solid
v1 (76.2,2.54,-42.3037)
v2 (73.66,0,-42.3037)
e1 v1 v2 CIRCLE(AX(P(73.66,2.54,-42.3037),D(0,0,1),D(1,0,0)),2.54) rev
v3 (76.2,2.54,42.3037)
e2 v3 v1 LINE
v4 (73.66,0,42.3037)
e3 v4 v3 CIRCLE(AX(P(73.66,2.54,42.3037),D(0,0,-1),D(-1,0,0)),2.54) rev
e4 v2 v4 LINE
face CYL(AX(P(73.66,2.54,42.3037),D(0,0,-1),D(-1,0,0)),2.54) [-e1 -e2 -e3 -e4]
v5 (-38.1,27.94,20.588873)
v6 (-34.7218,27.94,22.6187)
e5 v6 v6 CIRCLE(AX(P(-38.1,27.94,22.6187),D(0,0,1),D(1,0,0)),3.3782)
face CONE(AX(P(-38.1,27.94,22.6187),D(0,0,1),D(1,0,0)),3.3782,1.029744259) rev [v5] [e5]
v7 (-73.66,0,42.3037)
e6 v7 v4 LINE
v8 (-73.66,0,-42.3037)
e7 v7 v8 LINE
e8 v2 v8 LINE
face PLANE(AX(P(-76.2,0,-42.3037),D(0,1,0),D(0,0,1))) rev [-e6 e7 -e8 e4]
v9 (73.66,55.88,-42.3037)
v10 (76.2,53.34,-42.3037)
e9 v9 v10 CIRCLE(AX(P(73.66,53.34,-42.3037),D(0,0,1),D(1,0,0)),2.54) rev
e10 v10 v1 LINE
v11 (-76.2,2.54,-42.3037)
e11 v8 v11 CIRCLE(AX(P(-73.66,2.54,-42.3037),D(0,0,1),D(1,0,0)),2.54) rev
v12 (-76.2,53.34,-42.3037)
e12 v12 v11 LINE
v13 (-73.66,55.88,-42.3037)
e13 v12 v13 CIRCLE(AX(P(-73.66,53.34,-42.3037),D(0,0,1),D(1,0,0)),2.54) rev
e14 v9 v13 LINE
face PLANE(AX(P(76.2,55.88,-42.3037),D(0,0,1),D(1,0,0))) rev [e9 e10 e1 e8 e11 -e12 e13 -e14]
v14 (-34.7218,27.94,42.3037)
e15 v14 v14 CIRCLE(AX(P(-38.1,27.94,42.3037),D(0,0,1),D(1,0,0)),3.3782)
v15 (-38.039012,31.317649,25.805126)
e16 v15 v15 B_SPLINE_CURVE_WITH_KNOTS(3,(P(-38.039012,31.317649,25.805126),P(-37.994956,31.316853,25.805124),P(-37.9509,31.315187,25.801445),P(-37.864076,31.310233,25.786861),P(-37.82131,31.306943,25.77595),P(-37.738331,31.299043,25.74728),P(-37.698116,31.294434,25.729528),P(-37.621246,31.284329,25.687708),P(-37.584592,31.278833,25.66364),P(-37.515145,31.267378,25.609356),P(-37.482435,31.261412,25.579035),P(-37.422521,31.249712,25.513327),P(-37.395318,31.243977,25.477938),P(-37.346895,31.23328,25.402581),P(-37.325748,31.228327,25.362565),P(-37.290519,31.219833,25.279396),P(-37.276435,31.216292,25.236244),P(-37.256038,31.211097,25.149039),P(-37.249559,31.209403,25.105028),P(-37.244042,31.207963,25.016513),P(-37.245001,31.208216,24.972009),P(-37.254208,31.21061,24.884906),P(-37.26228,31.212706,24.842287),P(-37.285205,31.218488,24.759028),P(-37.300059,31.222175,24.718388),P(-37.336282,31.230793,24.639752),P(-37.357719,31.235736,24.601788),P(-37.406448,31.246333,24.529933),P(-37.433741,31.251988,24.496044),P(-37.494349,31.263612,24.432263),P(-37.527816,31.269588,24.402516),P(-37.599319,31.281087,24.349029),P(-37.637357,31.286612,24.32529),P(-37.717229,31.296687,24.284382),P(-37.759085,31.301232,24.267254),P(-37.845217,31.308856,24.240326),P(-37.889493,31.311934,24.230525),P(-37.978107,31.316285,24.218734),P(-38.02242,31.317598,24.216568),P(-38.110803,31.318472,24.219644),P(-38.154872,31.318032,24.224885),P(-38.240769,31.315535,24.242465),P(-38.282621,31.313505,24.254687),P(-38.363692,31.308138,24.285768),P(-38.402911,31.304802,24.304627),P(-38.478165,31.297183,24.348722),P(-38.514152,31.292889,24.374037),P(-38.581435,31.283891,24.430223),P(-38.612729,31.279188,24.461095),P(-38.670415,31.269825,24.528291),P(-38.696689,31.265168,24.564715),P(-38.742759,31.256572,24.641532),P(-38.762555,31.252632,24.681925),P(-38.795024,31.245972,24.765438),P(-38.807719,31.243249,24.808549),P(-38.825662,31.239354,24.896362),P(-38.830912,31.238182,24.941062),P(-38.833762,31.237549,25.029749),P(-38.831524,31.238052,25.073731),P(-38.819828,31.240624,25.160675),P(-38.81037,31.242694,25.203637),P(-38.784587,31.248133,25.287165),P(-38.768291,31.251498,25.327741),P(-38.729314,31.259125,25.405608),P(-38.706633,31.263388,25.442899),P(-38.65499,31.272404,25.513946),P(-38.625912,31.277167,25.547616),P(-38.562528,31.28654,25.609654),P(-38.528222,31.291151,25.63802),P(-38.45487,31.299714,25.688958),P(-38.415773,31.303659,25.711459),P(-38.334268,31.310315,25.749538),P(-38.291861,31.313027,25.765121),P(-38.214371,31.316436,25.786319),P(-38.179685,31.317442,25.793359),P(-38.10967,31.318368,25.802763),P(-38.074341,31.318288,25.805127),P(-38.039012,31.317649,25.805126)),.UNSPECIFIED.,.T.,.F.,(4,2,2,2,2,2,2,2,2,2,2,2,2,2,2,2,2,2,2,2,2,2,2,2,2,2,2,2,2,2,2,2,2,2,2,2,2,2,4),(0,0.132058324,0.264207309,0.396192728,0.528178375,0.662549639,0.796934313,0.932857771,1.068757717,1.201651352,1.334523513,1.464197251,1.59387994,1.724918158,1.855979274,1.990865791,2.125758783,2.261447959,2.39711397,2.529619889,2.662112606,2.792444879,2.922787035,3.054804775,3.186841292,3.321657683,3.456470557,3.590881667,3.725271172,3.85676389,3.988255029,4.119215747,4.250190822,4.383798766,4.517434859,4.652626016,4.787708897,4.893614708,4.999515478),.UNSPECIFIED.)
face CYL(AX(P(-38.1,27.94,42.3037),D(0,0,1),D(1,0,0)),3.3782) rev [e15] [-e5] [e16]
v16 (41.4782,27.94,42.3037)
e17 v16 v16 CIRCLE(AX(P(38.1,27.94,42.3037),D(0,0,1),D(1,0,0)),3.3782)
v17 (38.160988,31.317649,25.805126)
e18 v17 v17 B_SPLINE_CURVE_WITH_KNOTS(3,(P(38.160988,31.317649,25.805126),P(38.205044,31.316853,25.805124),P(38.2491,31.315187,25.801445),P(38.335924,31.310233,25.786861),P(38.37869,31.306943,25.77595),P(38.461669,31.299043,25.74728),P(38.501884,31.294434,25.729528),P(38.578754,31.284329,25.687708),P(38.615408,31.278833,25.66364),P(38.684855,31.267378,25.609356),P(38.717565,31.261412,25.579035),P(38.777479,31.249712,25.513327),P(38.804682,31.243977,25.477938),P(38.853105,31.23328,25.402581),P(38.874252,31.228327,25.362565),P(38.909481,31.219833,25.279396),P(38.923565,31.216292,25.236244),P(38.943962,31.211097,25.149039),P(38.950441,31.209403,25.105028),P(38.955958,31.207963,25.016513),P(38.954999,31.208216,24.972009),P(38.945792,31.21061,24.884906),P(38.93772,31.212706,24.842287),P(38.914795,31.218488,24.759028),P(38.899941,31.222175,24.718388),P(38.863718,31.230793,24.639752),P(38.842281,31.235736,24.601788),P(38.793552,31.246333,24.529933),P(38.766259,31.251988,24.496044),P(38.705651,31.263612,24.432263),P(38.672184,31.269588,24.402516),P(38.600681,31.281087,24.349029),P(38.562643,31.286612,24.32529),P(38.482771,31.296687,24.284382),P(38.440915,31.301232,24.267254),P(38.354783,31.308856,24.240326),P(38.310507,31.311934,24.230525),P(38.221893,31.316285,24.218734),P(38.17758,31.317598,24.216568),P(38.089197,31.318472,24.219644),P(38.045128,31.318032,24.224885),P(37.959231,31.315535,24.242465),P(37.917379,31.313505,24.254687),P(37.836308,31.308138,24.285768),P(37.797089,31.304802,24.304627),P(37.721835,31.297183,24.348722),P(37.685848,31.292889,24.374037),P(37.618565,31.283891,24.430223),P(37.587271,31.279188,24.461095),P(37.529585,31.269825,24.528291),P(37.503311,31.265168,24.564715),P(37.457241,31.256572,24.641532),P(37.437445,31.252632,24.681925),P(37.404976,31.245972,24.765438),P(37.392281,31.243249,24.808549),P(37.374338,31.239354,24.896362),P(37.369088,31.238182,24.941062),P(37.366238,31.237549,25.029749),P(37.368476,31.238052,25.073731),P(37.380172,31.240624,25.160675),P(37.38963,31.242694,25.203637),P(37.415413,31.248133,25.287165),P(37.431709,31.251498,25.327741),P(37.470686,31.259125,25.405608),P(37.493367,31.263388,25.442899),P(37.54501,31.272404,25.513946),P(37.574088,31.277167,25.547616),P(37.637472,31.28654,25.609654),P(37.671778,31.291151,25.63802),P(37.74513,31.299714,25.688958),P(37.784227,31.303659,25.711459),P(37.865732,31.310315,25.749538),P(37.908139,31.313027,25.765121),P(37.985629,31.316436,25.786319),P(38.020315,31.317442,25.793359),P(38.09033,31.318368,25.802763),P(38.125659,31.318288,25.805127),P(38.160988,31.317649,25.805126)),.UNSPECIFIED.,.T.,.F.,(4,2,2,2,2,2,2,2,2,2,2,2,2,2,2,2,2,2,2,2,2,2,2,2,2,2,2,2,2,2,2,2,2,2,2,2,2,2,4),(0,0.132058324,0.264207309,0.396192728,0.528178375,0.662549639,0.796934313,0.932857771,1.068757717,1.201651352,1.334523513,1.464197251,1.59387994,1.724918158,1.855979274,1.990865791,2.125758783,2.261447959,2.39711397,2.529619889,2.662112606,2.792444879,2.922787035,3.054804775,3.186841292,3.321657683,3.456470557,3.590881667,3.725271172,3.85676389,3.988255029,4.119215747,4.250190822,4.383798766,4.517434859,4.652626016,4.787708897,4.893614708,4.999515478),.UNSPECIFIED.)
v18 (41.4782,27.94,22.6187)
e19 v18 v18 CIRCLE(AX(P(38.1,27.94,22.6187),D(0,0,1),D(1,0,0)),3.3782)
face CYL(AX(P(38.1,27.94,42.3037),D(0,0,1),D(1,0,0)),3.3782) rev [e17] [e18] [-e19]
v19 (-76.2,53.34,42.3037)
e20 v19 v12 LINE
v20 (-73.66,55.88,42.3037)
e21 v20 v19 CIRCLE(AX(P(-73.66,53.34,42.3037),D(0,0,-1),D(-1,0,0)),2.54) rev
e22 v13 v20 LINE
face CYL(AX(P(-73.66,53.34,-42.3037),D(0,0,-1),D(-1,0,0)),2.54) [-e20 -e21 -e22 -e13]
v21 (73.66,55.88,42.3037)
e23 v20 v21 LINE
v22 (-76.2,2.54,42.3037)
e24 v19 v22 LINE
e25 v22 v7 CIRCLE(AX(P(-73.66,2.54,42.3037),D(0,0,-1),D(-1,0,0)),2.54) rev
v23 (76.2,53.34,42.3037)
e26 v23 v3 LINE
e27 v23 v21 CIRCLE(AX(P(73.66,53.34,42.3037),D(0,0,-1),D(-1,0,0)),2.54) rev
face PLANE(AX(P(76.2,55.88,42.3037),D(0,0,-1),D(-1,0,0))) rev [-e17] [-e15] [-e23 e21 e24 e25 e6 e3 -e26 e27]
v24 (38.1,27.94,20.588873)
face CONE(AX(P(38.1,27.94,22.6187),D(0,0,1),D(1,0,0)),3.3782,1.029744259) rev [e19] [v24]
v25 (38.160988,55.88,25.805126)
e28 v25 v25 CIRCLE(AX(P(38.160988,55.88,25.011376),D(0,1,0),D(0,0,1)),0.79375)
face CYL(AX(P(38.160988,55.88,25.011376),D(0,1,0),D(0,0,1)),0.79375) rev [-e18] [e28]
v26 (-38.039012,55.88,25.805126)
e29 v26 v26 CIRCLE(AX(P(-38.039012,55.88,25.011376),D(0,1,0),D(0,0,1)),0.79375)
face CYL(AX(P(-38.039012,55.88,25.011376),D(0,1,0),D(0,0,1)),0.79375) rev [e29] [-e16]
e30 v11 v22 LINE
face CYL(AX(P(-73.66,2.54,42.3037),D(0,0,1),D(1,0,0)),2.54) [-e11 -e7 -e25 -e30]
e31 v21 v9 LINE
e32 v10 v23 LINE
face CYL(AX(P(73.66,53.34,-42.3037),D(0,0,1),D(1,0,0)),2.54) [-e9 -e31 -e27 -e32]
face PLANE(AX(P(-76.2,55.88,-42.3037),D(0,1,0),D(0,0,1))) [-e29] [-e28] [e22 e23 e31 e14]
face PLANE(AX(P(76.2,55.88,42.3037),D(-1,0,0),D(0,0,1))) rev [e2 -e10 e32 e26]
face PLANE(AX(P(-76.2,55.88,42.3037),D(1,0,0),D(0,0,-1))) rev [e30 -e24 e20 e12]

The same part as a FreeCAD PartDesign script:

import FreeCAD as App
import Part
import Sketcher
Q = App.Units.Quantity


def edges_at(feature, points):
    """Names of the edges that pass closest to the given points."""
    edges = feature.Shape.Edges
    near = lambda p: min(range(len(edges)), key=lambda i: edges[i].distToShape(Part.Vertex(*p))[0])
    return sorted({f"Edge{near(p) + 1}" for p in points})

doc = App.newDocument("Part")
body = doc.addObject("PartDesign::Body", "Body")

sketch1 = body.newObject("Sketcher::SketchObject", "Sketch")
sketch1.AttachmentSupport = (doc.getObject("XZ_Plane"), [""])
sketch1.MapMode = "FlatFace"
sketch1.addGeometry([
    Part.LineSegment(App.Vector(-76, -42, 0), App.Vector(-76, 42, 0)),
    Part.LineSegment(App.Vector(-76, 42, 0), App.Vector(76, 42, 0)),
    Part.LineSegment(App.Vector(76, 42, 0), App.Vector(76, -42, 0)),
    Part.LineSegment(App.Vector(76, -42, 0), App.Vector(-76, -42, 0)),
], False)
sketch1.addConstraint([
    Sketcher.Constraint("Coincident", 0, 2, 1, 1),
    Sketcher.Constraint("Coincident", 1, 2, 2, 1),
    Sketcher.Constraint("Coincident", 2, 2, 3, 1),
    Sketcher.Constraint("Coincident", 3, 2, 0, 1),
    Sketcher.Constraint("Vertical", 0),
    Sketcher.Constraint("Horizontal", 1),
    Sketcher.Constraint("Vertical", 2),
    Sketcher.Constraint("Horizontal", 3),
    Sketcher.Constraint("Symmetric", 0, 2, 2, 2, -1, 1),
    Sketcher.Constraint("DistanceX", 1, 1, 1, 2, Q("6 in")),
    Sketcher.Constraint("DistanceY", 0, 1, 0, 2, Q("3.331 in")),
])
pad1 = body.newObject("PartDesign::Pad", "Pad")
pad1.Profile = sketch1
pad1.Length = Q("2.2 in")
pad1.Reversed = True
doc.recompute()

fillet = body.newObject("PartDesign::Fillet", "Fillet")
fillet.Base = (pad1, edges_at(pad1, [
    (76.2, 55.88, 0),
    (-76.2, 55.88, 0),
    (76.2, 0, 0),
    (-76.2, 0, 0),
]))
fillet.Radius = Q("0.1 in")

sketch2 = body.newObject("Sketcher::SketchObject", "Sketch001")
sketch2.AttachmentSupport = (doc.getObject("XY_Plane"), [""])
sketch2.MapMode = "FlatFace"
sketch2.AttachmentOffset = App.Placement(App.Vector(0, 0, 1.6655 * 25.4), App.Rotation())
sketch2.addGeometry([
    Part.Circle(App.Vector(-38.1, 27.9, 0), App.Vector(0, 0, 1), 3.4),
    Part.Circle(App.Vector(38.1, 27.9, 0), App.Vector(0, 0, 1), 3.4),
], False)
sketch2.addConstraint([
    Sketcher.Constraint("Equal", 0, 1),
    Sketcher.Constraint("Symmetric", 0, 3, 1, 3, -2),
    Sketcher.Constraint("Diameter", 0, Q("0.266 in")),
    Sketcher.Constraint("DistanceX", 0, 3, 1, 3, Q("3 in")),
    Sketcher.Constraint("DistanceY", -1, 1, 0, 3, Q("1.1 in")),
])
doc.recompute()
hole = body.newObject("PartDesign::Hole", "Hole")
hole.Profile = sketch2
hole.ThreadType = "None"
hole.Diameter = Q("0.266 in")
hole.DepthType = "Dimension"
hole.Depth = Q("0.775 in")
hole.DrillPoint = "Angled"
hole.DrillPointAngle = 118

sketch3 = body.newObject("Sketcher::SketchObject", "Sketch002")
sketch3.AttachmentSupport = (doc.getObject("XZ_Plane"), [""])
sketch3.MapMode = "FlatFace"
sketch3.AttachmentOffset = App.Placement(App.Vector(0, 0, -2.2 * 25.4), App.Rotation())
sketch3.addGeometry([
    Part.Circle(App.Vector(38.2, 25, 0), App.Vector(0, 0, 1), 0.8),
    Part.Circle(App.Vector(-38, 25, 0), App.Vector(0, 0, 1), 0.8),
], False)
sketch3.addConstraint([
    Sketcher.Constraint("Equal", 0, 1),
    Sketcher.Constraint("Horizontal", 0, 3, 1, 3),
    Sketcher.Constraint("Diameter", 0, Q("0.0625 in")),
    Sketcher.Constraint("DistanceX", 1, 3, 0, 3, Q("3 in")),
    Sketcher.Constraint("DistanceY", -1, 1, 0, 3, Q("0.9846998 in")),
    Sketcher.Constraint("DistanceX", -1, 1, 0, 3, Q("38.160988 mm")),
])
doc.recompute()
hole2 = body.newObject("PartDesign::Hole", "Hole001")
hole2.Profile = sketch3
hole2.ThreadType = "None"
hole2.Diameter = Q("0.0625 in")
hole2.DepthType = "Dimension"
hole2.Depth = Q("1.1 in")
hole2.DrillPoint = "Angled"
hole2.DrillPointAngle = 118
hole2.Reversed = True

doc.recompute()
